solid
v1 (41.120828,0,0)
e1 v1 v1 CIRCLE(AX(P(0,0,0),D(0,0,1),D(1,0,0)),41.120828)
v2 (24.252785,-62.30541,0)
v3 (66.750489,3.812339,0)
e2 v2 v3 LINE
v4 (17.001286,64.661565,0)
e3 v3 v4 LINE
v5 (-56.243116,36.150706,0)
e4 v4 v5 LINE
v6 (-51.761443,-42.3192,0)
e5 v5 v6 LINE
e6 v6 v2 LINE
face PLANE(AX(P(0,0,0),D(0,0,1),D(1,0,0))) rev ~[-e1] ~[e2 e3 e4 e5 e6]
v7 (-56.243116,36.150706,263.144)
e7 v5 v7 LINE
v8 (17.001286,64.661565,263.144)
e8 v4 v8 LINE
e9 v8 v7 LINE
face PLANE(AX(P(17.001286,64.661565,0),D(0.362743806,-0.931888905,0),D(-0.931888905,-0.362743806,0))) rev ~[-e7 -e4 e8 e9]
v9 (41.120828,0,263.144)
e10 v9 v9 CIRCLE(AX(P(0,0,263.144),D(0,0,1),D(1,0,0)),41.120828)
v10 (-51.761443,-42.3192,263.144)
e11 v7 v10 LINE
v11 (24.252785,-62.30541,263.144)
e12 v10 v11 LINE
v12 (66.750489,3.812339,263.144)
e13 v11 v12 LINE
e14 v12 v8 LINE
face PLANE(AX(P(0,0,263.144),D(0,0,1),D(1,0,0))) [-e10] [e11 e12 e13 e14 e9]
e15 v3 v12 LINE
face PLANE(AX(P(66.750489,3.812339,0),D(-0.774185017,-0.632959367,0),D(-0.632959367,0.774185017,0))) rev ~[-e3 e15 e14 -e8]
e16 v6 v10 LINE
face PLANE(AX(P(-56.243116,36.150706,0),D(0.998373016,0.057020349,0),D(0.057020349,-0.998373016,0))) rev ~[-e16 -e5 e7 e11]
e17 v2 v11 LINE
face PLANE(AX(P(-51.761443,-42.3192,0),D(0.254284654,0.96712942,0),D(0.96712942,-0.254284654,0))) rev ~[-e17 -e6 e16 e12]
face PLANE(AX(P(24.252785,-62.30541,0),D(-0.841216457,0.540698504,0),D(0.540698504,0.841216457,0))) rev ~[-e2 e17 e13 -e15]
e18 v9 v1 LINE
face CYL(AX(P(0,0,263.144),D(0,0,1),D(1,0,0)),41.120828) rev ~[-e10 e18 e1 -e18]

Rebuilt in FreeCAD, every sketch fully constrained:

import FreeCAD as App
import Part
import Sketcher

V = App.Vector
Q = App.Units.Quantity

doc = App.newDocument("Part")
body = doc.addObject("PartDesign::Body", "Body")

# Sketch on XY plane
sketch1 = body.newObject("Sketcher::SketchObject", "Sketch")
sketch1.AttachmentSupport = (doc.getObject("XY_Plane"), [""])
sketch1.MapMode = "FlatFace"
sketch1.addGeometry([
    Part.LineSegment(V(24.252785, -62.30541, 0), V(66.750489, 3.812339, 0)),  # 0
    Part.LineSegment(V(66.750489, 3.812339, 0), V(17.001286, 64.661565, 0)),  # 1
    Part.LineSegment(V(17.001286, 64.661565, 0), V(-56.243116, 36.150706, 0)),  # 2
    Part.LineSegment(V(-56.243116, 36.150706, 0), V(-51.761443, -42.3192, 0)),  # 3
    Part.LineSegment(V(-51.761443, -42.3192, 0), V(24.252785, -62.30541, 0)),  # 4
], False)
sketch1.addConstraint([
    Sketcher.Constraint("Coincident", 0, 2, 1, 1),
    Sketcher.Constraint("Coincident", 1, 2, 2, 1),
    Sketcher.Constraint("Coincident", 2, 2, 3, 1),
    Sketcher.Constraint("Coincident", 3, 2, 4, 1),
    Sketcher.Constraint("Coincident", 4, 2, 0, 1),
    Sketcher.Constraint("Equal", 0, 1),
    Sketcher.Constraint("Equal", 1, 2),
    Sketcher.Constraint("Equal", 2, 3),
    Sketcher.Constraint("Equal", 3, 4),
    Sketcher.Constraint("DistanceY", 4, 2, 1, 2, Q("4.9986998 in")),
    Sketcher.Constraint("DistanceY", 3, 2, -1, 1, Q("42.3192 mm")),
    Sketcher.Constraint("DistanceX", 2, 2, 4, 2, Q("80.495901 mm")),
    Sketcher.Constraint("DistanceX", 1, 2, 4, 2, Q("7.251499 mm")),
    Sketcher.Constraint("DistanceX", -1, 1, 0, 2, Q("66.750489 mm")),
    Sketcher.Constraint("DistanceY", -1, 1, 0, 2, Q("3.812339 mm")),
])
pad1 = body.newObject("PartDesign::Pad", "Pad")
pad1.Profile = sketch1
pad1.Length = Q("10.36 in")

# Sketch on XY plane
sketch2 = body.newObject("Sketcher::SketchObject", "Sketch001")
sketch2.AttachmentSupport = (doc.getObject("XY_Plane"), [""])
sketch2.MapMode = "FlatFace"
sketch2.AttachmentOffset = App.Placement(V(0, 0, 10.36 * 25.4), App.Rotation())
sketch2.addGeometry(Part.Circle(V(0, 0, 0), V(0, 0, 1), 41.120828), False)
sketch2.addConstraint([
    Sketcher.Constraint("Coincident", 0, 3, -1, 1),
    Sketcher.Constraint("Diameter", 0, Q("82.241656 mm")),
])
pocket1 = body.newObject("PartDesign::Pocket", "Pocket")
pocket1.Profile = sketch2
pocket1.Length = Q("10.81 in")

doc.recompute()
